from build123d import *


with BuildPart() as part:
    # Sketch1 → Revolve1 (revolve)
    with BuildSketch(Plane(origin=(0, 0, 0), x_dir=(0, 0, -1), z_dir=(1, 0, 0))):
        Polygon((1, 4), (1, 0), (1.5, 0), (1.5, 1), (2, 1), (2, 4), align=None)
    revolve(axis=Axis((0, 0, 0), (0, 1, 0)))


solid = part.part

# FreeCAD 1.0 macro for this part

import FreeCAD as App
import Part
import Sketcher

doc = App.newDocument("Part")
body = doc.addObject("PartDesign::Body", "Body")

# Sketch on YZ plane
sketch1 = doc.addObject("Sketcher::SketchObject", "Sketch")
body.addObject(sketch1)
sketch1.AttachmentSupport = (doc.YZ_Plane, [""])
sketch1.MapMode = "FlatFace"
sketch1.addGeometry([
    Part.LineSegment(App.Vector(4, -1, 0), App.Vector(0, -1, 0)),  # 0
    Part.LineSegment(App.Vector(0, -1, 0), App.Vector(0, -1.5, 0)),  # 1
    Part.LineSegment(App.Vector(0, -1.5, 0), App.Vector(1, -1.5, 0)),  # 2
    Part.LineSegment(App.Vector(1, -1.5, 0), App.Vector(1, -2, 0)),  # 3
    Part.LineSegment(App.Vector(1, -2, 0), App.Vector(4, -2, 0)),  # 4
    Part.LineSegment(App.Vector(4, -2, 0), App.Vector(4, -1, 0)),  # 5
], False)
sketch1.addConstraint([
    Sketcher.Constraint("Coincident", 0, 2, 1, 1),
    Sketcher.Constraint("Coincident", 1, 2, 2, 1),
    Sketcher.Constraint("Coincident", 2, 2, 3, 1),
    Sketcher.Constraint("Coincident", 3, 2, 4, 1),
    Sketcher.Constraint("Coincident", 4, 2, 5, 1),
    Sketcher.Constraint("Coincident", 5, 2, 0, 1),
    Sketcher.Constraint("Horizontal", 0),
    Sketcher.Constraint("Vertical", 1),
    Sketcher.Constraint("Horizontal", 2),
    Sketcher.Constraint("Vertical", 3),
    Sketcher.Constraint("Horizontal", 4),
    Sketcher.Constraint("Vertical", 5),
    Sketcher.Constraint("PointOnObject", 0, 2, -2),
    Sketcher.Constraint("Equal", 1, 3),
    Sketcher.Constraint("Equal", 2, 5),
    Sketcher.Constraint("DistanceX", 0, 2, 0, 1, 4.0),
    Sketcher.Constraint("DistanceX", 2, 1, 2, 2, 1.0),
    Sketcher.Constraint("DistanceY", 0, 2, -1, 1, 1.0),
])
revolution = doc.addObject("PartDesign::Revolution", "Revolution")
body.addObject(revolution)
revolution.Profile = sketch1
revolution.ReferenceAxis = (sketch1, ["H_Axis"])
revolution.Angle = 360

doc.recompute()
